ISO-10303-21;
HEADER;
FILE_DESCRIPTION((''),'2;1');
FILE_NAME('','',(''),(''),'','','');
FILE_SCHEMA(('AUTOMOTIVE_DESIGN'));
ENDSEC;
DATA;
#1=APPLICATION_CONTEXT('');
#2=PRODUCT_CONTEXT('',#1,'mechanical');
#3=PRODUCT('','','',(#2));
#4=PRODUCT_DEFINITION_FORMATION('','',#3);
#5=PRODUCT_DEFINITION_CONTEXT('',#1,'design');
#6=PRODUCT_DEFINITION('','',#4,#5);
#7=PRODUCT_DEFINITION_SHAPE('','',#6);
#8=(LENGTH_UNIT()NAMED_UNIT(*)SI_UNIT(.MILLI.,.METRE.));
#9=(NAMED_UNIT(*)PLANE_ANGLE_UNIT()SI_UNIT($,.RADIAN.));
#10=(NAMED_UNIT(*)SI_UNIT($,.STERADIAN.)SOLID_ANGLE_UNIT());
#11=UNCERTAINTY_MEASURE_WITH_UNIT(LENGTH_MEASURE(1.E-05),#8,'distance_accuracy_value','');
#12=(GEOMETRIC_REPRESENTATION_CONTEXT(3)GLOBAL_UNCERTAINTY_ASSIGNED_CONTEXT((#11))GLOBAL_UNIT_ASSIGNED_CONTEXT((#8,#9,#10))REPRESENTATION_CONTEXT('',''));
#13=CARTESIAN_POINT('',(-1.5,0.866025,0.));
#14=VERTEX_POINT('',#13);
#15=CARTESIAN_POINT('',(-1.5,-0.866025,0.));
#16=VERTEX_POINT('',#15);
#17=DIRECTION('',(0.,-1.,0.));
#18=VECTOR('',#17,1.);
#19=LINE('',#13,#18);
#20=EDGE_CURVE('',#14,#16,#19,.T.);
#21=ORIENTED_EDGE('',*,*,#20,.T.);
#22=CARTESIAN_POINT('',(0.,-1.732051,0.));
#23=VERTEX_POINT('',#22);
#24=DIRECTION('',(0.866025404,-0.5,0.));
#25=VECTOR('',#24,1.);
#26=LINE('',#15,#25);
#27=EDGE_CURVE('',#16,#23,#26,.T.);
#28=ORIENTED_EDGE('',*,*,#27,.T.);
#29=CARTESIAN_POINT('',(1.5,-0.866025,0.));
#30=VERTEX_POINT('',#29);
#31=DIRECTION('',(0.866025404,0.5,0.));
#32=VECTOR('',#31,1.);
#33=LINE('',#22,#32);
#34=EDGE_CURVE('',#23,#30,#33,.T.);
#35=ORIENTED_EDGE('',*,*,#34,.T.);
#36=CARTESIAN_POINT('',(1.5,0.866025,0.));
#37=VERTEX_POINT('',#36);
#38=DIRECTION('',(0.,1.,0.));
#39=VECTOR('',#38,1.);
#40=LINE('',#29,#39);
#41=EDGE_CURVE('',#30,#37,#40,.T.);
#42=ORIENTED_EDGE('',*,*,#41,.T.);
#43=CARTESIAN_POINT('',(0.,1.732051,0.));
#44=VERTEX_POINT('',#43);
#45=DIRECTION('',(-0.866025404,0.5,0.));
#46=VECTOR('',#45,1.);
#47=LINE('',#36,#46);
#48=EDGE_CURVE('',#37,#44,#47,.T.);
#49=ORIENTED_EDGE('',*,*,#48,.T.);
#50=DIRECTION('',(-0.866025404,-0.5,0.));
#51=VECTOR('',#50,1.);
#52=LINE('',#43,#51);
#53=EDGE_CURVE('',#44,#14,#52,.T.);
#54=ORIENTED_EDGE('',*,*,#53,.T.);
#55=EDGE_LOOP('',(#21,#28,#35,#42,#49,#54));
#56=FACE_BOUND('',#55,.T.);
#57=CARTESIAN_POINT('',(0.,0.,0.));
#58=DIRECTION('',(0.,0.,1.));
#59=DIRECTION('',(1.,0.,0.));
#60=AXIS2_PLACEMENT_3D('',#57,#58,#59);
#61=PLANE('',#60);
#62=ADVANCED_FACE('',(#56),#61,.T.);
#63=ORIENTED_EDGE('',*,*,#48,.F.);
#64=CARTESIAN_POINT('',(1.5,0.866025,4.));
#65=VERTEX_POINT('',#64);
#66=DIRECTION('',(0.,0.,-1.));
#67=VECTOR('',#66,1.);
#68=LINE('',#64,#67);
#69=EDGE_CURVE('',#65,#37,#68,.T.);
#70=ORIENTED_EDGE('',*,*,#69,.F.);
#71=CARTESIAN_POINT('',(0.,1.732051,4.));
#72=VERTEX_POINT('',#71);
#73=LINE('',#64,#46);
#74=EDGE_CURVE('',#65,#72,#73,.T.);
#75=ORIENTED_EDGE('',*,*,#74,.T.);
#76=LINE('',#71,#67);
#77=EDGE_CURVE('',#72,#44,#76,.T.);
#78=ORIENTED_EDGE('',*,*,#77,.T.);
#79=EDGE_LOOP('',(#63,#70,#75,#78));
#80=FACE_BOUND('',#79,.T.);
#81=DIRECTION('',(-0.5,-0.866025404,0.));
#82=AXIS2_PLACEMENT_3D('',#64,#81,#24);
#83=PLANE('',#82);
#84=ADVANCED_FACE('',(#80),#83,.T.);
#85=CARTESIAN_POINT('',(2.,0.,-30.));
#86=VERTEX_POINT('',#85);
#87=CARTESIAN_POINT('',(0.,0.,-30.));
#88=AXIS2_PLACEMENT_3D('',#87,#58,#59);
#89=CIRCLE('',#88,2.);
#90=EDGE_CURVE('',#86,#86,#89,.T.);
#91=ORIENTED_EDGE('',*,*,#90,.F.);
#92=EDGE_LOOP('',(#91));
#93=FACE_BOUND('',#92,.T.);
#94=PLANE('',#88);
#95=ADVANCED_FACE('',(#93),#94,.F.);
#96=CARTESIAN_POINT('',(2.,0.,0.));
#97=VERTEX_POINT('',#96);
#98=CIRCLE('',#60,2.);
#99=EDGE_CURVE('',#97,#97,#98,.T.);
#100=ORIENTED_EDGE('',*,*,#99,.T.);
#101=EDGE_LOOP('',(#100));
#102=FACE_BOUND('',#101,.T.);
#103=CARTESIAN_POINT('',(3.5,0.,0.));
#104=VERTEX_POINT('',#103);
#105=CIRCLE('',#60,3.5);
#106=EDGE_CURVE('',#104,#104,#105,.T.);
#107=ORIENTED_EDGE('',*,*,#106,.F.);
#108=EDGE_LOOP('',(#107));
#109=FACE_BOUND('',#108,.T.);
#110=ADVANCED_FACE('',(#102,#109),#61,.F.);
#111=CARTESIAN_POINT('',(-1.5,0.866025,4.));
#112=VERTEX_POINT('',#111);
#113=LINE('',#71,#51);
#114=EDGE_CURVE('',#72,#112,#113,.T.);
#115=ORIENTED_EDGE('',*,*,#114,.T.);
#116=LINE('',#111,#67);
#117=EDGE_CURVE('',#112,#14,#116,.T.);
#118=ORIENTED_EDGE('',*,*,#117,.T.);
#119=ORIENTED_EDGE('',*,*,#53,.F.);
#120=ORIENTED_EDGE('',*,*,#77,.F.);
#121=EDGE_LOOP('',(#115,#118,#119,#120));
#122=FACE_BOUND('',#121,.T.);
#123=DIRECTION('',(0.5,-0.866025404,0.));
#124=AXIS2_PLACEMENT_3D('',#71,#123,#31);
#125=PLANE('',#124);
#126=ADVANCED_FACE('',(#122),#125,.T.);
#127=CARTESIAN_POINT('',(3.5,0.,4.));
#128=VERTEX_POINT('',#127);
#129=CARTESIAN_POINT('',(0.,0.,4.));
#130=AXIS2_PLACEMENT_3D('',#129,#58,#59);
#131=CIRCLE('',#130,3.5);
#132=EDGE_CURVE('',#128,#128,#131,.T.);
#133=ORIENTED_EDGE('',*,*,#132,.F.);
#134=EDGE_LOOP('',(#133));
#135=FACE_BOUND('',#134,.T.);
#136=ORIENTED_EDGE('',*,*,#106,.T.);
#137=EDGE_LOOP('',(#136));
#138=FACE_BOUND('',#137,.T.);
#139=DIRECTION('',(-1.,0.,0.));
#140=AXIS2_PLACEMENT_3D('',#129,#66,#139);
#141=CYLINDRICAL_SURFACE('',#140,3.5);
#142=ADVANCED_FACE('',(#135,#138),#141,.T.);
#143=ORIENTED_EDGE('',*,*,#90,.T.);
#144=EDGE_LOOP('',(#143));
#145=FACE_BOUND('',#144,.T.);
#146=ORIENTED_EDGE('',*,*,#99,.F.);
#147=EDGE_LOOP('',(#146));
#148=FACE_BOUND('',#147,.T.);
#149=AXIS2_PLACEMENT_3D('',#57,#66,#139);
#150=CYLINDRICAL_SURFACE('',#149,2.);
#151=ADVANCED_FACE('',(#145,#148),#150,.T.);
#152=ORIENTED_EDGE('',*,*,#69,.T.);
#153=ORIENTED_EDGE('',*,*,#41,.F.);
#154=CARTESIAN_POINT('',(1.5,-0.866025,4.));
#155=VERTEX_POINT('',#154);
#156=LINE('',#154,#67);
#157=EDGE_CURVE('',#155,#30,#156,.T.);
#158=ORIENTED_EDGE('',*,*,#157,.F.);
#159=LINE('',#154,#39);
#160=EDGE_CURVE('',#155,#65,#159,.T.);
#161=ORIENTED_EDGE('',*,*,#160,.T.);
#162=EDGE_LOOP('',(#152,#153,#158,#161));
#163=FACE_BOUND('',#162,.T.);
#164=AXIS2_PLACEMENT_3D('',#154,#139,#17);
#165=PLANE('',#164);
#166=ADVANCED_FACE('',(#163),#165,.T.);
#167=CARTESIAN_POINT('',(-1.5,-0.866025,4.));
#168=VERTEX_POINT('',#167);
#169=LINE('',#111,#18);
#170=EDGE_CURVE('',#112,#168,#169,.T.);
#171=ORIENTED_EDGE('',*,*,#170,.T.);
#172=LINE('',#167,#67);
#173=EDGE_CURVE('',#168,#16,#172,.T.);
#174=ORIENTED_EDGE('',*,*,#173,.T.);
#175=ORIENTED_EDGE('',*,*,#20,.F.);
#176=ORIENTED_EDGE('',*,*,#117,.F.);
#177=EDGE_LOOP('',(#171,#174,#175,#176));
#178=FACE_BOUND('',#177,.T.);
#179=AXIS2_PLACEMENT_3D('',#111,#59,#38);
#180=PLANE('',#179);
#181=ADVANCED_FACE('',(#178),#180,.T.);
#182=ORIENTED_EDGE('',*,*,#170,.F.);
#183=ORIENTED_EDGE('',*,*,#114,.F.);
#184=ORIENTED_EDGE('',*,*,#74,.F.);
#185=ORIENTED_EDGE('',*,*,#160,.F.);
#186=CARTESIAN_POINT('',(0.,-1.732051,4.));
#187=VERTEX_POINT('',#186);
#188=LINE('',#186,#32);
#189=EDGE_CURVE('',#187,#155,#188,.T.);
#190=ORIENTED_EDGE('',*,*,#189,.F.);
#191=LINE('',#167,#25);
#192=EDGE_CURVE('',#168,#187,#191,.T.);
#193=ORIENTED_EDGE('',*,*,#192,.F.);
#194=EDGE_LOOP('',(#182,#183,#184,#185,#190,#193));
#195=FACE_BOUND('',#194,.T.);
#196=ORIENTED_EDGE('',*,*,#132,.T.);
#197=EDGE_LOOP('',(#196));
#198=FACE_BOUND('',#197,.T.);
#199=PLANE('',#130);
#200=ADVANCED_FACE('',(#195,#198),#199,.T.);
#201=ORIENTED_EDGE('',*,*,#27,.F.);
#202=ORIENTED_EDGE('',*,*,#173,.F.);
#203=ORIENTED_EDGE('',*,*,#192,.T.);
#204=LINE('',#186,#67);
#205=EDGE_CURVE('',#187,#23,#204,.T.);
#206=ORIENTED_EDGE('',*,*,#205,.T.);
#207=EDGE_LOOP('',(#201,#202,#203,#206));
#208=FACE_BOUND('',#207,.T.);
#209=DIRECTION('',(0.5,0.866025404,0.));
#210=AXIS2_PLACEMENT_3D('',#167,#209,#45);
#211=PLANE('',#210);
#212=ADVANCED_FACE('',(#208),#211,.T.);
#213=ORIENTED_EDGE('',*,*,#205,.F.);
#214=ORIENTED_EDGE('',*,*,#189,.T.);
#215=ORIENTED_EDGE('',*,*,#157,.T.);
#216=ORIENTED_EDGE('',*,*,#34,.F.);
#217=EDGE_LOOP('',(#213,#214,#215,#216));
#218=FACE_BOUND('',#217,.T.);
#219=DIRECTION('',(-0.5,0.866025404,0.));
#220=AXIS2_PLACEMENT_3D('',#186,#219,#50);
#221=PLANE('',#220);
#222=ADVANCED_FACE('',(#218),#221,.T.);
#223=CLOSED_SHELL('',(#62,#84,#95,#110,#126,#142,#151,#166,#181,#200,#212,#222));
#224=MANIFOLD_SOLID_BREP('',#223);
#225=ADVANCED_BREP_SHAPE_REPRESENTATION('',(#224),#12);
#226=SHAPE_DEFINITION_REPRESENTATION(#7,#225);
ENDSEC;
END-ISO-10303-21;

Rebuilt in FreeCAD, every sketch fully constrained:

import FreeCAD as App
import Part
import Sketcher
from FreeCAD import Vector
Q = App.Units.Quantity


def add_polygon(sketch, points):
    """Adds a closed chain of lines whose ends are joined by coincident constraints."""
    first, n = sketch.GeometryCount, len(points)
    for a, b in zip(points, points[1:] + points[:1]):
        sketch.addGeometry(Part.LineSegment(App.Vector(*a, 0), App.Vector(*b, 0)), False)
    for i in range(n):
        sketch.addConstraint(Sketcher.Constraint("Coincident", first + i, 2, first + (i + 1) % n, 1))

doc = App.newDocument("Part")
body = doc.addObject("PartDesign::Body", "Body")

# Sketch on XY plane
sketch1 = body.newObject("Sketcher::SketchObject", "Sketch")
sketch1.AttachmentSupport = (doc.getObject("XY_Plane"), [""])
sketch1.MapMode = "FlatFace"
sketch1.AttachmentOffset = App.Placement(Vector(0, 0, -30), App.Rotation())
sketch1.addGeometry(Part.Circle(Vector(0, 0, 0), Vector(0, 0, 1), 2), False)
sketch1.addConstraint([
    Sketcher.Constraint("Coincident", 0, 3, -1, 1),
    Sketcher.Constraint("Diameter", 0, Q("4 mm")),
])
pad1 = body.newObject("PartDesign::Pad", "Pad")
pad1.Profile = sketch1
pad1.Length = 30

# Sketch on XY plane
sketch2 = body.newObject("Sketcher::SketchObject", "Sketch001")
sketch2.AttachmentSupport = (doc.getObject("XY_Plane"), [""])
sketch2.MapMode = "FlatFace"
sketch2.addGeometry(Part.Circle(Vector(0, 0, 0), Vector(0, 0, 1), 3.5), False)  # 0
add_polygon(sketch2, [(0, 1.732051), (1.5, 0.866025), (1.5, -0.866025), (0, -1.732051), (-1.5, -0.866025), (-1.5, 0.866025)])  # lines 1-6
sketch2.addConstraint([
    Sketcher.Constraint("Vertical", 2),
    Sketcher.Constraint("Vertical", 5),
    Sketcher.Constraint("Coincident", 0, 3, -1, 1),
    Sketcher.Constraint("Symmetric", 1, 2, 4, 2, -1, 1),
    Sketcher.Constraint("Symmetric", 3, 2, 6, 2, -1, 1),
    Sketcher.Constraint("PointOnObject", 3, 2, -2),
    Sketcher.Constraint("Parallel", 3, 6),
    Sketcher.Constraint("Horizontal", 2, 2, 4, 2),
    Sketcher.Constraint("Diameter", 0, Q("7 mm")),
    Sketcher.Constraint("Angle", 1, Q("-30 deg")),
    Sketcher.Constraint("DistanceX", 4, 2, 2, 2, Q("3 mm")),
    Sketcher.Constraint("DistanceY", 2, 2, 2, 1, Q("1.732051 mm")),
])
pad2 = body.newObject("PartDesign::Pad", "Pad001")
pad2.Profile = sketch2
pad2.Length = 4

doc.recompute()
